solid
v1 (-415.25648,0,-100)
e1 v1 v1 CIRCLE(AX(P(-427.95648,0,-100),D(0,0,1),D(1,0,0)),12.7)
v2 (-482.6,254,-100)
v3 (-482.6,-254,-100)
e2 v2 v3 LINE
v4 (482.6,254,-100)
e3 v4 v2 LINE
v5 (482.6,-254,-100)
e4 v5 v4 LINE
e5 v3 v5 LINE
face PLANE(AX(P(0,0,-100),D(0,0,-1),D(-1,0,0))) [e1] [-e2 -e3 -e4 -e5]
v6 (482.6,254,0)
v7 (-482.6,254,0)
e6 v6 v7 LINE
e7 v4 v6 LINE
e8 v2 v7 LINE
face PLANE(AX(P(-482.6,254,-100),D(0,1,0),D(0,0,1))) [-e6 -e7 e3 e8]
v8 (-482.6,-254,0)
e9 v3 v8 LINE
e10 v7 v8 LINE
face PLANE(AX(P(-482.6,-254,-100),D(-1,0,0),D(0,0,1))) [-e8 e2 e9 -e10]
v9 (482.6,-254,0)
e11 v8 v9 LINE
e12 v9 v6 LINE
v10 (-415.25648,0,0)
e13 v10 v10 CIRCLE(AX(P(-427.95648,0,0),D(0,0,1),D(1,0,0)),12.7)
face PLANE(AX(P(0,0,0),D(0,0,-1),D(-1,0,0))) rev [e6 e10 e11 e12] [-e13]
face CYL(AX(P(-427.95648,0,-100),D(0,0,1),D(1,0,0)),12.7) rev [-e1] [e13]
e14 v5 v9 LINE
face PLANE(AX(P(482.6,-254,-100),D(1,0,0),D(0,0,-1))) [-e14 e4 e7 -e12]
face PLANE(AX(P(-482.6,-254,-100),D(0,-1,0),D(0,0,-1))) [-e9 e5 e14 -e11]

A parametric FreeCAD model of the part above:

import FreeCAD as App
import Part
import Sketcher
from FreeCAD import Vector
Q = App.Units.Quantity

doc = App.newDocument("Part")
body = doc.addObject("PartDesign::Body", "Body")

# Sketch on XY plane
sketch1 = body.newObject("Sketcher::SketchObject", "Sketch")
sketch1.AttachmentSupport = (doc.getObject("XY_Plane"), [""])
sketch1.MapMode = "FlatFace"
sketch1.addGeometry([
    Part.LineSegment(Vector(-483, 254, 0), Vector(-483, -254, 0)),
    Part.LineSegment(Vector(-483, -254, 0), Vector(483, -254, 0)),
    Part.LineSegment(Vector(483, -254, 0), Vector(483, 254, 0)),
    Part.LineSegment(Vector(483, 254, 0), Vector(-483, 254, 0)),
], False)
sketch1.addConstraint([
    Sketcher.Constraint("Coincident", 0, 2, 1, 1),
    Sketcher.Constraint("Coincident", 1, 2, 2, 1),
    Sketcher.Constraint("Coincident", 2, 2, 3, 1),
    Sketcher.Constraint("Coincident", 3, 2, 0, 1),
    Sketcher.Constraint("Vertical", 0),
    Sketcher.Constraint("Horizontal", 1),
    Sketcher.Constraint("Vertical", 2),
    Sketcher.Constraint("Horizontal", 3),
    Sketcher.Constraint("Symmetric", 0, 2, 2, 2, -1, 1),
    Sketcher.Constraint("DistanceX", 1, 1, 1, 2, Q("38 in")),
    Sketcher.Constraint("DistanceY", 0, 2, 0, 1, Q("20 in")),
])
pad1 = body.newObject("PartDesign::Pad", "Pad")
pad1.Profile = sketch1
pad1.Length = 100
pad1.Reversed = True

# Sketch on XY plane
sketch2 = body.newObject("Sketcher::SketchObject", "Sketch001")
sketch2.AttachmentSupport = (doc.getObject("XY_Plane"), [""])
sketch2.MapMode = "FlatFace"
sketch2.addGeometry(Part.Circle(Vector(-428, 0, 0), Vector(0, 0, 1), 13), False)
sketch2.addConstraint([
    Sketcher.Constraint("PointOnObject", 0, 3, -1),
    Sketcher.Constraint("Diameter", 0, Q("1 in")),
    Sketcher.Constraint("DistanceX", 0, 3, -1, 1, 427.95648),
])
pocket1 = body.newObject("PartDesign::Pocket", "Pocket")
pocket1.Profile = sketch2
pocket1.Type = "ThroughAll"
pocket1.Midplane = True

doc.recompute()
